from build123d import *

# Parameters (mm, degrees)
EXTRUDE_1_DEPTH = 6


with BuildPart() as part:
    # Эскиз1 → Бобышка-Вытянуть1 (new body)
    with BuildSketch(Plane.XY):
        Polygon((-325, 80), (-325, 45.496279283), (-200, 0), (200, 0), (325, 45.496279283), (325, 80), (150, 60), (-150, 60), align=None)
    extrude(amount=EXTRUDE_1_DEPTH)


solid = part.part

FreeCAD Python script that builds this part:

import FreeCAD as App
import Part
import Sketcher
from FreeCAD import Vector
Q = App.Units.Quantity

doc = App.newDocument("Part")
body = doc.addObject("PartDesign::Body", "Body")

# Sketch on XY plane
sketch1 = body.newObject("Sketcher::SketchObject", "Sketch")
sketch1.AttachmentSupport = (doc.getObject("XY_Plane"), [""])
sketch1.MapMode = "FlatFace"
sketch1.addGeometry([
    Part.LineSegment(Vector(-325, 80, 0), Vector(-325, 45, 0)),  # 0
    Part.LineSegment(Vector(-325, 45, 0), Vector(-200, 0, 0)),  # 1
    Part.LineSegment(Vector(-200, 0, 0), Vector(200, 0, 0)),  # 2
    Part.LineSegment(Vector(200, 0, 0), Vector(325, 45, 0)),  # 3
    Part.LineSegment(Vector(325, 45, 0), Vector(325, 80, 0)),  # 4
    Part.LineSegment(Vector(325, 80, 0), Vector(150, 60, 0)),  # 5
    Part.LineSegment(Vector(150, 60, 0), Vector(-150, 60, 0)),  # 6
    Part.LineSegment(Vector(-150, 60, 0), Vector(-325, 80, 0)),  # 7
], False)
sketch1.addConstraint([
    Sketcher.Constraint("Coincident", 0, 2, 1, 1),
    Sketcher.Constraint("Coincident", 1, 2, 2, 1),
    Sketcher.Constraint("Coincident", 2, 2, 3, 1),
    Sketcher.Constraint("Coincident", 3, 2, 4, 1),
    Sketcher.Constraint("Coincident", 4, 2, 5, 1),
    Sketcher.Constraint("Coincident", 5, 2, 6, 1),
    Sketcher.Constraint("Coincident", 6, 2, 7, 1),
    Sketcher.Constraint("Coincident", 7, 2, 0, 1),
    Sketcher.Constraint("Vertical", 0),
    Sketcher.Constraint("Horizontal", 2),
    Sketcher.Constraint("Vertical", 4),
    Sketcher.Constraint("Horizontal", 6),
    Sketcher.Constraint("Symmetric", 1, 2, 2, 2, -1, 1),
    Sketcher.Constraint("Symmetric", 0, 2, 3, 2, -2),
    Sketcher.Constraint("Horizontal", 4, 2, 7, 2),
    Sketcher.Constraint("Equal", 5, 7),
    Sketcher.Constraint("DistanceX", 2, 1, 2, 2, 400.0),
    Sketcher.Constraint("DistanceX", 6, 2, 6, 1, 300.0),
    Sketcher.Constraint("Angle", 1, Q("-20 deg")),
    Sketcher.Constraint("DistanceX", 0, 2, -1, 1, 325.0),
    Sketcher.Constraint("DistanceY", -1, 1, 4, 2, 80.0),
    Sketcher.Constraint("DistanceY", -1, 1, 5, 2, 60.0),
])
pad1 = body.newObject("PartDesign::Pad", "Pad")
pad1.Profile = sketch1
pad1.Length = 6

doc.recompute()
